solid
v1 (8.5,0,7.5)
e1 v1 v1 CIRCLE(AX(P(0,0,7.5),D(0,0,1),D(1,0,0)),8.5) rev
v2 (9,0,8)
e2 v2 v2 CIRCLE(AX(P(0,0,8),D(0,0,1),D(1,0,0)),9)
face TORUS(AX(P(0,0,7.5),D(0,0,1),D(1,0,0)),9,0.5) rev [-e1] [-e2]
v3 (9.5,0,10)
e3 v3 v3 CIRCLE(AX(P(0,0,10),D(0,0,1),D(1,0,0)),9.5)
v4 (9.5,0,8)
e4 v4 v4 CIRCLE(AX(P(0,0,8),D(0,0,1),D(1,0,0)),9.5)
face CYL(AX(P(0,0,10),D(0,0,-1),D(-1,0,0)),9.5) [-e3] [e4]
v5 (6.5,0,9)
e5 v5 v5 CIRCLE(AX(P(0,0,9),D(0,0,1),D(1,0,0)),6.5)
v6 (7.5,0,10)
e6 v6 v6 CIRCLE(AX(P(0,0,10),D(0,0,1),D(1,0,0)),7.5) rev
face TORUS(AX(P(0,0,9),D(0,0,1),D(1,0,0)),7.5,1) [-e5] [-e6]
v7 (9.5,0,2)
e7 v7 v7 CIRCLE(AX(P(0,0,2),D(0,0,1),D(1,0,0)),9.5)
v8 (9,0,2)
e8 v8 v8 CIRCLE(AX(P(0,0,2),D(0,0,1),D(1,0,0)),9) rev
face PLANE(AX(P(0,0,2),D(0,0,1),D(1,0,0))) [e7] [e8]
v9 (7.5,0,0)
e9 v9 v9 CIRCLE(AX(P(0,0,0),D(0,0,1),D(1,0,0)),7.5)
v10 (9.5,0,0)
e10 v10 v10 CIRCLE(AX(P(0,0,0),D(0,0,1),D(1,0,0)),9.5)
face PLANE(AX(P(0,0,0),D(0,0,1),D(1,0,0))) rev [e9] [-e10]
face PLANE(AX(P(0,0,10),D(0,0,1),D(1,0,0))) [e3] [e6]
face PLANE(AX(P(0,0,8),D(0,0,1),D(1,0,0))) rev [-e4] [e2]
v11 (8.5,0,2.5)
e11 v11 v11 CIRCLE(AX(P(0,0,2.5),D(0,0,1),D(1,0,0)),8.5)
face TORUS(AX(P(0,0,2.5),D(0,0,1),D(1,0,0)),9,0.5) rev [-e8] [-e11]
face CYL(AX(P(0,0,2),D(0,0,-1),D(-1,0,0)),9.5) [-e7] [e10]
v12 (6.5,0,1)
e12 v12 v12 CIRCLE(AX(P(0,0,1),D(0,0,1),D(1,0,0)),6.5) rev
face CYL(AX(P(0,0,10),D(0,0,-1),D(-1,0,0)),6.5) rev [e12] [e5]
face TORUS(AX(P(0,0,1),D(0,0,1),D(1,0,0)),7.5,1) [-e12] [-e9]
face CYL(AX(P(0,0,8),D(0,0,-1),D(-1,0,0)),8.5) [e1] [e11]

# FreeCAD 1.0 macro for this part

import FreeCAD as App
import Part
import Sketcher
Q = App.Units.Quantity


def edges_at(feature, points):
    """Names of the edges that pass closest to the given points."""
    edges = feature.Shape.Edges
    near = lambda p: min(range(len(edges)), key=lambda i: edges[i].distToShape(Part.Vertex(*p))[0])
    return sorted({f"Edge{near(p) + 1}" for p in points})

doc = App.newDocument("Part")
params = doc.addObject("Spreadsheet::Sheet", "Params")
for row, (alias, value) in enumerate([
    ("sketch1_diameter", "19 mm"),
    ("pad1_length", "2 mm"),
    ("sketch2_diameter", "17 mm"),
    ("pad2_length", "6 mm"),
    ("sketch3_diameter", "19 mm"),
    ("pad3_length", "2 mm"),
    ("sketch4_diameter", "13 mm"),
    ("fillet_radius", "1 mm"),
    ("fillet2_radius", "0.5 mm"),
], start=1):
    params.set(f"A{row}", alias)
    params.set(f"B{row}", "=" + value)
    params.setAlias(f"B{row}", alias)

body = doc.addObject("PartDesign::Body", "Body")

sketch1 = body.newObject("Sketcher::SketchObject", "Sketch")
sketch1.AttachmentSupport = (doc.getObject("XY_Plane"), [""])
sketch1.MapMode = "FlatFace"
sketch1.addGeometry(Part.Circle(App.Vector(0, 0, 0), App.Vector(0, 0, 1), 10), False)
sketch1.addConstraint(Sketcher.Constraint("Coincident", 0, 3, -1, 1))
sketch1.addConstraint(Sketcher.Constraint("Diameter", 0, Q("19 mm")))
sketch1.setExpression("Constraints[1]", "Params.sketch1_diameter")
pad1 = body.newObject("PartDesign::Pad", "Pad")
pad1.Profile = sketch1
pad1.setExpression("Length", "Params.pad1_length")

sketch2 = body.newObject("Sketcher::SketchObject", "Sketch001")
sketch2.AttachmentSupport = (doc.getObject("XY_Plane"), [""])
sketch2.MapMode = "FlatFace"
sketch2.AttachmentOffset = App.Placement(App.Vector(0, 0, 2), App.Rotation())
sketch2.addGeometry(Part.Circle(App.Vector(0, 0, 0), App.Vector(0, 0, 1), 8), False)
sketch2.addConstraint(Sketcher.Constraint("Coincident", 0, 3, -1, 1))
sketch2.addConstraint(Sketcher.Constraint("Diameter", 0, Q("17 mm")))
sketch2.setExpression("Constraints[1]", "Params.sketch2_diameter")
pad2 = body.newObject("PartDesign::Pad", "Pad001")
pad2.Profile = sketch2
pad2.setExpression("Length", "Params.pad2_length")

sketch3 = body.newObject("Sketcher::SketchObject", "Sketch002")
sketch3.AttachmentSupport = (doc.getObject("XY_Plane"), [""])
sketch3.MapMode = "FlatFace"
sketch3.AttachmentOffset = App.Placement(App.Vector(0, 0, 8), App.Rotation())
sketch3.addGeometry(Part.Circle(App.Vector(0, 0, 0), App.Vector(0, 0, 1), 10), False)
sketch3.addConstraint(Sketcher.Constraint("Coincident", 0, 3, -1, 1))
sketch3.addConstraint(Sketcher.Constraint("Diameter", 0, Q("19 mm")))
sketch3.setExpression("Constraints[1]", "Params.sketch3_diameter")
pad3 = body.newObject("PartDesign::Pad", "Pad002")
pad3.Profile = sketch3
pad3.setExpression("Length", "Params.pad3_length")

sketch4 = body.newObject("Sketcher::SketchObject", "Sketch003")
sketch4.AttachmentSupport = (doc.getObject("XY_Plane"), [""])
sketch4.MapMode = "FlatFace"
sketch4.addGeometry(Part.Circle(App.Vector(0, 0, 0), App.Vector(0, 0, 1), 6), False)
sketch4.addConstraint(Sketcher.Constraint("Coincident", 0, 3, -1, 1))
sketch4.addConstraint(Sketcher.Constraint("Diameter", 0, Q("13 mm")))
sketch4.setExpression("Constraints[1]", "Params.sketch4_diameter")
pocket1 = body.newObject("PartDesign::Pocket", "Pocket")
pocket1.Profile = sketch4
pocket1.Type = "ThroughAll"
pocket1.Midplane = True
doc.recompute()

fillet = body.newObject("PartDesign::Fillet", "Fillet")
fillet.Base = (pocket1, edges_at(pocket1, [(6.5, 0, 10), (6.5, 0, 0)]))
fillet.setExpression("Radius", "Params.fillet_radius")
doc.recompute()

fillet2 = body.newObject("PartDesign::Fillet", "Fillet001")
fillet2.Base = (fillet, edges_at(fillet, [(-8.5, 0, 2), (-8.5, 0, 8)]))
fillet2.setExpression("Radius", "Params.fillet2_radius")

doc.recompute()
